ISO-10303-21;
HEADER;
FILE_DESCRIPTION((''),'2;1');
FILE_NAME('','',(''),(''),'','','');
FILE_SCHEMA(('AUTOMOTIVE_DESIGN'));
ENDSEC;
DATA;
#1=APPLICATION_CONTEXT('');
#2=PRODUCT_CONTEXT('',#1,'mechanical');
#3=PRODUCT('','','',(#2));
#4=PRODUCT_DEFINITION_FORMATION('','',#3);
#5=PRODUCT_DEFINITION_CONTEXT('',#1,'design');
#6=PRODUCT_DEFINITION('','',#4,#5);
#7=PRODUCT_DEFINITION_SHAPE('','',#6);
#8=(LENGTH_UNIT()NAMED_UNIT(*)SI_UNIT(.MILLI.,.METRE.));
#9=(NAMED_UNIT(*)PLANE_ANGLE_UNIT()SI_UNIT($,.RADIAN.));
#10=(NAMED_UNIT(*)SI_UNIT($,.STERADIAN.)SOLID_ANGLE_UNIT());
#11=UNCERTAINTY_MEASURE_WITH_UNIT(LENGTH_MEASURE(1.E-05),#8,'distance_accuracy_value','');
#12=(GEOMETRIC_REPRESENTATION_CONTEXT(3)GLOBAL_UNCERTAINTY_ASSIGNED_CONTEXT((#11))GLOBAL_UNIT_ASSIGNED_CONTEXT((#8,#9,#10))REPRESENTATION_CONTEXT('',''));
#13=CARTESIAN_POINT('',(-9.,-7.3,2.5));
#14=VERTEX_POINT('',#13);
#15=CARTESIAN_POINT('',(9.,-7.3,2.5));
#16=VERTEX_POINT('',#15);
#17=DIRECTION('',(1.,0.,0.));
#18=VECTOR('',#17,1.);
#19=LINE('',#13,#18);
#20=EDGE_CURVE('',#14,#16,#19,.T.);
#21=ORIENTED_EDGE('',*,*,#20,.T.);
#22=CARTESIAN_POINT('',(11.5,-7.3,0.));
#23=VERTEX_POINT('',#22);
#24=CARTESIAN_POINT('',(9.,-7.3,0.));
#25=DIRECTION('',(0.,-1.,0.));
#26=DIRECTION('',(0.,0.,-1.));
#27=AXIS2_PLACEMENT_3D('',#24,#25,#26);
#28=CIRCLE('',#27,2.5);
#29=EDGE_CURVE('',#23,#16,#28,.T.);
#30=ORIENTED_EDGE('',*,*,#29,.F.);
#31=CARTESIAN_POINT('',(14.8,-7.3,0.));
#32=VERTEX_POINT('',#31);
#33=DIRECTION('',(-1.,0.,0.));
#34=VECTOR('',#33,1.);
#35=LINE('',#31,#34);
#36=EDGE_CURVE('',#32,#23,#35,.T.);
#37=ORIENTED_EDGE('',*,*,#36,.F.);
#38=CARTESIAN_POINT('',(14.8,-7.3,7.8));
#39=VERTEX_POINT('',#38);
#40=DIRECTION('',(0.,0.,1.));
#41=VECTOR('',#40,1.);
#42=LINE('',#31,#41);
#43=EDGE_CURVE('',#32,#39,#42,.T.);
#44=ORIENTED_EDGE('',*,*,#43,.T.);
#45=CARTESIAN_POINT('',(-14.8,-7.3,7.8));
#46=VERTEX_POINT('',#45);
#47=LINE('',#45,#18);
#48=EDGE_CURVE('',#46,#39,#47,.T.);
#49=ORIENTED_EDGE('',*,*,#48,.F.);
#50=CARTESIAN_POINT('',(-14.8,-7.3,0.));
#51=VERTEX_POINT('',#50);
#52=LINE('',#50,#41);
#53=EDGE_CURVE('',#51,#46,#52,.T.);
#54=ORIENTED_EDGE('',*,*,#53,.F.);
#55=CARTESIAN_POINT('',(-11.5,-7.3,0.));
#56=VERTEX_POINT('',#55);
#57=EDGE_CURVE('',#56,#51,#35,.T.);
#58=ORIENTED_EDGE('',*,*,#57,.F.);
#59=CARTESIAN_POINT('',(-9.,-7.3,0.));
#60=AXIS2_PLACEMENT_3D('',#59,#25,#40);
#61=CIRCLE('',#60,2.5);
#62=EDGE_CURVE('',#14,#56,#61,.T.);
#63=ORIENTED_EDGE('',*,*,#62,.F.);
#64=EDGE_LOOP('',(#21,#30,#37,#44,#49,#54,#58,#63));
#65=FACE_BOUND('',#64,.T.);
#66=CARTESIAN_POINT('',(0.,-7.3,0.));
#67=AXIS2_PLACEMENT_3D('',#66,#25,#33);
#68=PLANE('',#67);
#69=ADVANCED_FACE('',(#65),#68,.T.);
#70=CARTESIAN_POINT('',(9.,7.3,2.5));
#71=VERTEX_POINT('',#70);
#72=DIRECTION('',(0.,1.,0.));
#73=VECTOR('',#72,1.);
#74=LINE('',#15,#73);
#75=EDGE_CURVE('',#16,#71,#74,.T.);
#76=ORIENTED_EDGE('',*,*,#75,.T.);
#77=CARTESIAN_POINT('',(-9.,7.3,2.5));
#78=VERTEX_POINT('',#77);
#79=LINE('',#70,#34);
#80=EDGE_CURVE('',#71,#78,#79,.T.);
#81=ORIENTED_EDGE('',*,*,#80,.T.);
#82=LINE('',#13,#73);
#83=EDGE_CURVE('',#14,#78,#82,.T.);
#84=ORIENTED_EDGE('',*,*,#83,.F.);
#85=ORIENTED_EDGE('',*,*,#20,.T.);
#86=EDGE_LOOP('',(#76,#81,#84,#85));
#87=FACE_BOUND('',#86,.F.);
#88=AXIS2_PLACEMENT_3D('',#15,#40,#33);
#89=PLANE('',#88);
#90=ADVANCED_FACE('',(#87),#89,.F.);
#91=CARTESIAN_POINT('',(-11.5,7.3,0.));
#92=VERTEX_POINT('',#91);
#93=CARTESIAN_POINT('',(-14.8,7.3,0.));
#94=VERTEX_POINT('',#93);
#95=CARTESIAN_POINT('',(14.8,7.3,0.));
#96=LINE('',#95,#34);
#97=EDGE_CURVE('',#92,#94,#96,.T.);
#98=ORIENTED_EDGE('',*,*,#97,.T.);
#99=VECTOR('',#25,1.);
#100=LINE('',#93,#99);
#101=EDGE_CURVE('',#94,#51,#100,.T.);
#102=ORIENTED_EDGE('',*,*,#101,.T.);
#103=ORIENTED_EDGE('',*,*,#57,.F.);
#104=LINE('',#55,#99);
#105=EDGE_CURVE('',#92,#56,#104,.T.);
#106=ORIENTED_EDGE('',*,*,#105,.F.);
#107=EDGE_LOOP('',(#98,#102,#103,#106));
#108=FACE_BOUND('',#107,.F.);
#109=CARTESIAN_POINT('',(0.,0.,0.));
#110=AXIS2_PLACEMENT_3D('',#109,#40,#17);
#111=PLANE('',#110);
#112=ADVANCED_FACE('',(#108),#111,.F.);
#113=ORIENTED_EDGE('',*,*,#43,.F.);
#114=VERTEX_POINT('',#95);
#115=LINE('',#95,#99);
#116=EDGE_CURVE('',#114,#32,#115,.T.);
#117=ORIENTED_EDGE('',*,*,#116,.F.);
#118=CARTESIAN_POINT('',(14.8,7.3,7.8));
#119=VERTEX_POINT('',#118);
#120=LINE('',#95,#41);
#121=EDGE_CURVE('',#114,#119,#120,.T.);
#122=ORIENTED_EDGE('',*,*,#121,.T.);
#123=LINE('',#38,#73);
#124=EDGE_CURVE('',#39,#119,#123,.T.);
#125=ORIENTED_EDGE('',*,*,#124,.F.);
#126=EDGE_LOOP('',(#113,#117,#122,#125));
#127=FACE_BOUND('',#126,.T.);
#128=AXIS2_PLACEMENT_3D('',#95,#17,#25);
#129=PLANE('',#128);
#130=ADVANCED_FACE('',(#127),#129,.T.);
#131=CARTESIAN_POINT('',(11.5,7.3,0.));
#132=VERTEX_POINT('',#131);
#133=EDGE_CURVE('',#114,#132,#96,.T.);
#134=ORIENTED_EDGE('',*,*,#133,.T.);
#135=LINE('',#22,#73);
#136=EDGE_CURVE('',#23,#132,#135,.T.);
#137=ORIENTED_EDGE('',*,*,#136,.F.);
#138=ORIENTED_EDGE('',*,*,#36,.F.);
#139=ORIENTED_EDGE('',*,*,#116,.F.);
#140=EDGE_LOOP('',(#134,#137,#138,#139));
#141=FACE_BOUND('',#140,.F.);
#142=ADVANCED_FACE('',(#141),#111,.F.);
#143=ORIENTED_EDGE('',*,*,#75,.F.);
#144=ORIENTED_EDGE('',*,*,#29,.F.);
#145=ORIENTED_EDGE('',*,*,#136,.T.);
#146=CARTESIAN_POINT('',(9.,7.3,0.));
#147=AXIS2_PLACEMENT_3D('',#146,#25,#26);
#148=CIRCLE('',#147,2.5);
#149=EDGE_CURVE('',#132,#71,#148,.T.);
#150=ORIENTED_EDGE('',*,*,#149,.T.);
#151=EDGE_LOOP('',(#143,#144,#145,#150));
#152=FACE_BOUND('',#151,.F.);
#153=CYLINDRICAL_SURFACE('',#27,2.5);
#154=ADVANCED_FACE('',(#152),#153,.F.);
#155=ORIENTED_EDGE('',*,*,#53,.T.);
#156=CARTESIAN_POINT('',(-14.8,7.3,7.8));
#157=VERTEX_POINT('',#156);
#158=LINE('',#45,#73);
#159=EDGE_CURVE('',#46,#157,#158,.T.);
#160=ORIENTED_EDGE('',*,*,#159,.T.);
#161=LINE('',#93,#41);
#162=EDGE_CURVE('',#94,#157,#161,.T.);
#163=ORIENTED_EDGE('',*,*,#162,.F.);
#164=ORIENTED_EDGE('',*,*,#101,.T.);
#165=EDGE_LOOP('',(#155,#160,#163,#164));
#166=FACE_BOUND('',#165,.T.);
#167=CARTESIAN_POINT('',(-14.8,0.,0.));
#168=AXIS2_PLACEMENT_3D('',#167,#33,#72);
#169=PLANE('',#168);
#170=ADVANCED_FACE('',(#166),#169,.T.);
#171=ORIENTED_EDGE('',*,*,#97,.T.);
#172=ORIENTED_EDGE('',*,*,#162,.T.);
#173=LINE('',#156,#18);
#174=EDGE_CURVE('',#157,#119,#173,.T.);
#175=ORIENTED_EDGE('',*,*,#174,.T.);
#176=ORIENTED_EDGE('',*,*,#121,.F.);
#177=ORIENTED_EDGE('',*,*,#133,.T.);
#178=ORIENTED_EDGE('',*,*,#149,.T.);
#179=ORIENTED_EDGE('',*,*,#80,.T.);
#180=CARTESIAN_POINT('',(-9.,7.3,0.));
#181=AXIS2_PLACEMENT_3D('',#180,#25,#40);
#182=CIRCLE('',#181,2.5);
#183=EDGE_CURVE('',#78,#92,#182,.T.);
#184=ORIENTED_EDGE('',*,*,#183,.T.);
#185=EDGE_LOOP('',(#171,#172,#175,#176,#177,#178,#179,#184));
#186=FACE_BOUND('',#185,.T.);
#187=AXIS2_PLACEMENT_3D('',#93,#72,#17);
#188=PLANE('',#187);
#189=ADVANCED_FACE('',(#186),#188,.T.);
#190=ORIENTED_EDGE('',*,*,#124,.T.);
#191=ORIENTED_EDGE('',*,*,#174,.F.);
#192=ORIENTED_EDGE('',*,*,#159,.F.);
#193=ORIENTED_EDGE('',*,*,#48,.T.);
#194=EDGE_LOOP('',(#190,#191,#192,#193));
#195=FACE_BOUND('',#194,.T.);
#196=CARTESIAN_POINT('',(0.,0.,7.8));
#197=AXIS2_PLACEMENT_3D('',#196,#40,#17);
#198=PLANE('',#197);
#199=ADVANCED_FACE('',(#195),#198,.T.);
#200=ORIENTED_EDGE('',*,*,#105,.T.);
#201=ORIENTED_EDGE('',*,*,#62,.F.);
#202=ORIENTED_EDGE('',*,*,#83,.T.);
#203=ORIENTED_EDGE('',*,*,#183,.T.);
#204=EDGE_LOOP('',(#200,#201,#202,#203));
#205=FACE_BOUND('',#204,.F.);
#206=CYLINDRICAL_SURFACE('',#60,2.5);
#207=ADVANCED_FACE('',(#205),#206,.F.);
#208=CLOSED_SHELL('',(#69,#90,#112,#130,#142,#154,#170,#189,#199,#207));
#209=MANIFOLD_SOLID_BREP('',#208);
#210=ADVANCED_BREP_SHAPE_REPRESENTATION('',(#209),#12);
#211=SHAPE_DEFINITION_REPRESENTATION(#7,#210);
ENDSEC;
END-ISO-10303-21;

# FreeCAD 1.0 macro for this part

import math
import FreeCAD as App
import Part
import Sketcher
from FreeCAD import Vector
Q = App.Units.Quantity


def add_polygon(sketch, points):
    """Adds a closed chain of lines whose ends are joined by coincident constraints."""
    first, n = sketch.GeometryCount, len(points)
    for a, b in zip(points, points[1:] + points[:1]):
        sketch.addGeometry(Part.LineSegment(App.Vector(*a, 0), App.Vector(*b, 0)), False)
    for i in range(n):
        sketch.addConstraint(Sketcher.Constraint("Coincident", first + i, 2, first + (i + 1) % n, 1))

doc = App.newDocument("Part")
body = doc.addObject("PartDesign::Body", "Body")

sketch1 = body.newObject("Sketcher::SketchObject", "Sketch")
sketch1.AttachmentSupport = (doc.getObject("XY_Plane"), [""])
sketch1.MapMode = "FlatFace"
add_polygon(sketch1, [(-14.8, 7.3), (-14.8, -7.3), (14.8, -7.3), (14.8, 7.3)])
sketch1.addConstraint([
    Sketcher.Constraint("Vertical", 0),
    Sketcher.Constraint("Horizontal", 1),
    Sketcher.Constraint("Vertical", 2),
    Sketcher.Constraint("Horizontal", 3),
    Sketcher.Constraint("Symmetric", 0, 2, 2, 2, -1, 1),
    Sketcher.Constraint("DistanceX", 1, 1, 1, 2, Q("29.6 mm")),
    Sketcher.Constraint("DistanceY", 0, 2, 0, 1, Q("14.6 mm")),
])
pad1 = body.newObject("PartDesign::Pad", "Pad")
pad1.Profile = sketch1
pad1.Length = 7.8

sketch2 = body.newObject("Sketcher::SketchObject", "Sketch001")
sketch2.AttachmentSupport = (doc.getObject("XZ_Plane"), [""])
sketch2.MapMode = "FlatFace"
sketch2.AttachmentOffset = App.Placement(Vector(0, 0, 7.3), App.Rotation())
sketch2.addGeometry(Part.Circle(Vector(0, 0, 0), Vector(0, 0, 1), 2.5), False)
sketch2.addConstraint([
    Sketcher.Constraint("Coincident", 0, 3, -1, 1),
    Sketcher.Constraint("Diameter", 0, Q("5 mm")),
])
doc.recompute()
hole = body.newObject("PartDesign::Hole", "Hole")
hole.Profile = sketch2
hole.ThreadType = "None"
hole.Diameter = 5
hole.DepthType = "ThroughAll"

sketch3 = body.newObject("Sketcher::SketchObject", "Sketch002")
sketch3.AttachmentSupport = (doc.getObject("XZ_Plane"), [""])
sketch3.MapMode = "FlatFace"
sketch3.AttachmentOffset = App.Placement(Vector(0, 0, 7.3), App.Rotation())
sketch3.addGeometry([
    Part.ArcOfCircle(Part.Circle(Vector(-9, 0, 0), Vector(0, 0, 1), 2.5), math.radians(90), math.radians(270)),
    Part.LineSegment(Vector(-9, -2.5, 0), Vector(9, -2.5, 0)),
    Part.ArcOfCircle(Part.Circle(Vector(9, 0, 0), Vector(0, 0, 1), 2.5), math.radians(-90), math.radians(90)),
    Part.LineSegment(Vector(9, 2.5, 0), Vector(-9, 2.5, 0)),
], False)
sketch3.addConstraint([
    Sketcher.Constraint("Tangent", 0, 2, 1, 1),
    Sketcher.Constraint("Tangent", 1, 2, 2, 1),
    Sketcher.Constraint("Tangent", 2, 2, 3, 1),
    Sketcher.Constraint("Tangent", 3, 2, 0, 1),
    Sketcher.Constraint("Horizontal", 1),
    Sketcher.Constraint("Horizontal", 3),
    Sketcher.Constraint("Symmetric", 0, 3, 2, 3, -1, 1),
    Sketcher.Constraint("Radius", 0, Q("2.5 mm")),
    Sketcher.Constraint("DistanceX", 0, 3, -1, 1, Q("9 mm")),
])
pocket1 = body.newObject("PartDesign::Pocket", "Pocket")
pocket1.Profile = sketch3
pocket1.Type = "ThroughAll"

doc.recompute()
